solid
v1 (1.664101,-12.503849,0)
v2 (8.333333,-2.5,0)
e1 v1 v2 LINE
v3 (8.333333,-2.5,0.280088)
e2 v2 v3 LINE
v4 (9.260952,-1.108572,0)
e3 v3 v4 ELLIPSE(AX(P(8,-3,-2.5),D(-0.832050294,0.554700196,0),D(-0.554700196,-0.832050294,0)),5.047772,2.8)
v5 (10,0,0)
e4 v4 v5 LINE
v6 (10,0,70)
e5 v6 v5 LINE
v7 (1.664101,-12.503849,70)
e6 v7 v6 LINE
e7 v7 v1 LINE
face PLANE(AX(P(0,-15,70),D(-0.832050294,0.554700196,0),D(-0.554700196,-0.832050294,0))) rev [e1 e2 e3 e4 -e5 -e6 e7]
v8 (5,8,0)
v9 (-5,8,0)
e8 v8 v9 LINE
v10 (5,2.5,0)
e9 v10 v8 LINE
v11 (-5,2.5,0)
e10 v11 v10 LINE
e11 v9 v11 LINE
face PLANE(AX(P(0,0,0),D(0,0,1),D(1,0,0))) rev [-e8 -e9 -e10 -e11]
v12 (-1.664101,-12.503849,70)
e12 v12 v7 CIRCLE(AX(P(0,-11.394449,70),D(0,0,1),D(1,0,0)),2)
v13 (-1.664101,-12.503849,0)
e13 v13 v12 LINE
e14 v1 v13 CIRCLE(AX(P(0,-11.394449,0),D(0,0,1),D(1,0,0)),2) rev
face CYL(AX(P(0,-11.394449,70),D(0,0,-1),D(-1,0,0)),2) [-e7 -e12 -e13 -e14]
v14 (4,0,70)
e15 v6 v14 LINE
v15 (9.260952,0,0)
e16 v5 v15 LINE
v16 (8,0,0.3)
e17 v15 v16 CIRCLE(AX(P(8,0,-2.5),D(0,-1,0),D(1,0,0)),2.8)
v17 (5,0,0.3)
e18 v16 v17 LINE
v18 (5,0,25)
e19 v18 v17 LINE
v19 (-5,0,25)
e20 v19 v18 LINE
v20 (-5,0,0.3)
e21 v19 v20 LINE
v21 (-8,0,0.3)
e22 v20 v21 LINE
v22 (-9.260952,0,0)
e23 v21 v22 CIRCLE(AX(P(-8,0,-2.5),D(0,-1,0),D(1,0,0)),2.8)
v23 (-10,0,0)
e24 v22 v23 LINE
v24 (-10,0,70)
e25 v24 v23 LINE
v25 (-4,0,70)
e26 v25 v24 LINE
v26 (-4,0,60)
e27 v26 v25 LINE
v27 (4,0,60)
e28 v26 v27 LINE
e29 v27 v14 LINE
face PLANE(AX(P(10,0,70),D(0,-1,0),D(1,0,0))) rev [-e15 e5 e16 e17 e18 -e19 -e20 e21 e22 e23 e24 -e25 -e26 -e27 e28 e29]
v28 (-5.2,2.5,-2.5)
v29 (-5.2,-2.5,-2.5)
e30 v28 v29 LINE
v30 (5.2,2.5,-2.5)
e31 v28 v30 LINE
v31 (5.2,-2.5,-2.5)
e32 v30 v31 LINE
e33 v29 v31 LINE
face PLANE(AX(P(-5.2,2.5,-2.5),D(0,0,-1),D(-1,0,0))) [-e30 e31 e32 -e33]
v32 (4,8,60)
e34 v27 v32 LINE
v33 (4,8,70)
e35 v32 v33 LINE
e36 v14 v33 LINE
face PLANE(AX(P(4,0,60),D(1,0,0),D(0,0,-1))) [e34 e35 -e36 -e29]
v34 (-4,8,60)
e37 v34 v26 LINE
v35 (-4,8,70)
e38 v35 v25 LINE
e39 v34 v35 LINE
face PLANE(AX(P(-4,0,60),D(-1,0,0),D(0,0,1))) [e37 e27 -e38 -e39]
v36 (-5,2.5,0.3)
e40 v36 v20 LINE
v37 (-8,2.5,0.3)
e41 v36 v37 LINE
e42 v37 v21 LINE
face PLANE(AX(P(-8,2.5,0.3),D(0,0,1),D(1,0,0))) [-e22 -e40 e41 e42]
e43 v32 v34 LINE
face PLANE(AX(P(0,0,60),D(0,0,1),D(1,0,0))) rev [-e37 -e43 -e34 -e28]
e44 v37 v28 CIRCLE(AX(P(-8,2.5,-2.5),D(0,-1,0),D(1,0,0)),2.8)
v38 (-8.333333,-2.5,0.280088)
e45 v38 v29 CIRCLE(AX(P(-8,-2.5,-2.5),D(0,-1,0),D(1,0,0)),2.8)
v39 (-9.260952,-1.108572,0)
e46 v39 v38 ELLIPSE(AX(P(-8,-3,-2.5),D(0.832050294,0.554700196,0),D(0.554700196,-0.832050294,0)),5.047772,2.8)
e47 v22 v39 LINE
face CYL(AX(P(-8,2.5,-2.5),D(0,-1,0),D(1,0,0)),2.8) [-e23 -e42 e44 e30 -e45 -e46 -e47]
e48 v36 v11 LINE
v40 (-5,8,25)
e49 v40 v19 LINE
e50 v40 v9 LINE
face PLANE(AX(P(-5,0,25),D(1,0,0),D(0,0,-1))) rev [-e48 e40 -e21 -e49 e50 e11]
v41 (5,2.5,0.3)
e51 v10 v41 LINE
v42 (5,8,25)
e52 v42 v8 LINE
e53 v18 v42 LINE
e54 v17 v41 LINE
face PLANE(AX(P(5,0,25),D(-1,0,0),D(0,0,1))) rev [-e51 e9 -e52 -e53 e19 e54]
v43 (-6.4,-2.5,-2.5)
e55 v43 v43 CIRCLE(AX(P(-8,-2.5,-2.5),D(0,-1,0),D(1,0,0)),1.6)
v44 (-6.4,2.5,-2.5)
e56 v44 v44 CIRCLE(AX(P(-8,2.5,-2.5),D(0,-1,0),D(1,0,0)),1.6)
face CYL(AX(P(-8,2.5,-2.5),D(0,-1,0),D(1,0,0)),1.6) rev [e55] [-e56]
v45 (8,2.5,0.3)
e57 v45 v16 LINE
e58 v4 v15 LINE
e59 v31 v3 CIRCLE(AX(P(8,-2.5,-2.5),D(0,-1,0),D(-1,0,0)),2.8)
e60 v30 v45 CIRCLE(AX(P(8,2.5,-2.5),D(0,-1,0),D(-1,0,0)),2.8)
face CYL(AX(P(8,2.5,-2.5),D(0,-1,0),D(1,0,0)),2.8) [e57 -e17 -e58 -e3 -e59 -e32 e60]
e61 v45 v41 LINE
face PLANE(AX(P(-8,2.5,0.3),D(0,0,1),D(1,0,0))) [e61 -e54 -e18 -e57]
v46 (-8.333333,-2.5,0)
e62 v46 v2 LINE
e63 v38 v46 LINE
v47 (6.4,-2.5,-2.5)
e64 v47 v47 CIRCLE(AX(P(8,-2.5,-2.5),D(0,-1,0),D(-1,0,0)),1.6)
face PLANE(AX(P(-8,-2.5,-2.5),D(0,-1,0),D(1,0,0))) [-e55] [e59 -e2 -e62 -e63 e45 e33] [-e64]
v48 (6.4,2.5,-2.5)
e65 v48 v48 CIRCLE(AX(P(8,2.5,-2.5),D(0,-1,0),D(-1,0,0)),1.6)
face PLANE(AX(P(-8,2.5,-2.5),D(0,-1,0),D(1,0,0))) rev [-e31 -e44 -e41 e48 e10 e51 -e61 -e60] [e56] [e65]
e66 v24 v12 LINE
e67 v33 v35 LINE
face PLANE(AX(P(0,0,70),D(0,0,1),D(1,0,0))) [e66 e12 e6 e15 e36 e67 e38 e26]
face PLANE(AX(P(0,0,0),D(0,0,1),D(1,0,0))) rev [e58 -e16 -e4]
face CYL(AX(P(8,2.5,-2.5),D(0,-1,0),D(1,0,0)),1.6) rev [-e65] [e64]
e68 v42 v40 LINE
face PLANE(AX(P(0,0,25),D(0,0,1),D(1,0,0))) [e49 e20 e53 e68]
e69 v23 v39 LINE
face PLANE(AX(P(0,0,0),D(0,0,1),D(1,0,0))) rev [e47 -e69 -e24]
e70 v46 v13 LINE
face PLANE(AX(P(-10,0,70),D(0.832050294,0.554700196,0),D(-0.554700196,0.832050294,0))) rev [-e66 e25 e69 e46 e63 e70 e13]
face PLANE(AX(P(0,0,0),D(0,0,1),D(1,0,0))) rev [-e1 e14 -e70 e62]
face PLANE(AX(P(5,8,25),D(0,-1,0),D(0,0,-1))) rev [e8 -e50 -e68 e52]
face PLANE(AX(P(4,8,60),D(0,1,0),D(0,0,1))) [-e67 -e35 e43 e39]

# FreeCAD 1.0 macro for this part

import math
import FreeCAD as App
import Part
import Sketcher
Q = App.Units.Quantity


def edges_at(feature, points):
    """Names of the edges that pass closest to the given points."""
    edges = feature.Shape.Edges
    near = lambda p: min(range(len(edges)), key=lambda i: edges[i].distToShape(Part.Vertex(*p))[0])
    return sorted({f"Edge{near(p) + 1}" for p in points})


def add_polygon(sketch, points):
    """Adds a closed chain of lines whose ends are joined by coincident constraints."""
    first, n = sketch.GeometryCount, len(points)
    for a, b in zip(points, points[1:] + points[:1]):
        sketch.addGeometry(Part.LineSegment(App.Vector(*a, 0), App.Vector(*b, 0)), False)
    for i in range(n):
        sketch.addConstraint(Sketcher.Constraint("Coincident", first + i, 2, first + (i + 1) % n, 1))

doc = App.newDocument("Part")
body = doc.addObject("PartDesign::Body", "Body")

# Sketch on XY plane
sketch1 = body.newObject("Sketcher::SketchObject", "Sketch")
sketch1.AttachmentSupport = (doc.getObject("XY_Plane"), [""])
sketch1.MapMode = "FlatFace"
add_polygon(sketch1, [(0, -15), (10, 0), (-10, 0)])  # lines 0-2
sketch1.addConstraint(Sketcher.Constraint("Horizontal", 1))
sketch1.addConstraint(Sketcher.Constraint("Symmetric", 0, 2, 1, 2, -1, 1))
sketch1.addConstraint(Sketcher.Constraint("PointOnObject", 2, 2, -2))
sketch1.addConstraint(Sketcher.Constraint("DistanceX", 1, 2, 1, 1, Q("20 mm")))
sketch1.addConstraint(Sketcher.Constraint("DistanceY", 2, 2, -1, 1, Q("15 mm")))
pad1 = body.newObject("PartDesign::Pad", "Pad")
pad1.Profile = sketch1
pad1.Length = 70

# Sketch on XY plane
sketch2 = body.newObject("Sketcher::SketchObject", "Sketch001")
sketch2.AttachmentSupport = (doc.getObject("XY_Plane"), [""])
sketch2.MapMode = "FlatFace"
add_polygon(sketch2, [(-5, 8), (-5, 0), (5, 0), (5, 8)])  # lines 0-3
sketch2.addConstraint(Sketcher.Constraint("Vertical", 0))
sketch2.addConstraint(Sketcher.Constraint("Horizontal", 1))
sketch2.addConstraint(Sketcher.Constraint("Vertical", 2))
sketch2.addConstraint(Sketcher.Constraint("Horizontal", 3))
sketch2.addConstraint(Sketcher.Constraint("Symmetric", 0, 2, 1, 2, -1, 1))
sketch2.addConstraint(Sketcher.Constraint("DistanceX", 1, 1, 1, 2, Q("10 mm")))
sketch2.addConstraint(Sketcher.Constraint("DistanceY", 0, 2, 0, 1, Q("8 mm")))
pad2 = body.newObject("PartDesign::Pad", "Pad001")
pad2.Profile = sketch2
pad2.Length = 25

# Sketch on XY plane
sketch3 = body.newObject("Sketcher::SketchObject", "Sketch002")
sketch3.AttachmentSupport = (doc.getObject("XY_Plane"), [""])
sketch3.MapMode = "FlatFace"
sketch3.AttachmentOffset = App.Placement(App.Vector(0, 0, 70), App.Rotation())
add_polygon(sketch3, [(-4, 8), (-4, 0), (4, 0), (4, 8)])  # lines 0-3
sketch3.addConstraint(Sketcher.Constraint("Vertical", 0))
sketch3.addConstraint(Sketcher.Constraint("Horizontal", 1))
sketch3.addConstraint(Sketcher.Constraint("Vertical", 2))
sketch3.addConstraint(Sketcher.Constraint("Horizontal", 3))
sketch3.addConstraint(Sketcher.Constraint("Symmetric", 0, 2, 1, 2, -1, 1))
sketch3.addConstraint(Sketcher.Constraint("Equal", 3, 0))
sketch3.addConstraint(Sketcher.Constraint("DistanceX", 1, 1, 1, 2, Q("8 mm")))
pad3 = body.newObject("PartDesign::Pad", "Pad002")
pad3.Profile = sketch3
pad3.Length = 10
pad3.Reversed = True

# Sketch on XZ plane
sketch4 = body.newObject("Sketcher::SketchObject", "Sketch003")
sketch4.AttachmentSupport = (doc.getObject("XZ_Plane"), [""])
sketch4.MapMode = "FlatFace"
sketch4.addGeometry(Part.LineSegment(App.Vector(-5.2, -2.5, 0), App.Vector(5.2, -2.5, 0)), False)
sketch4.addGeometry(Part.ArcOfCircle(Part.Circle(App.Vector(8, -2.5, 0), App.Vector(0, 0, 1), 2.8), math.radians(180), math.radians(450)), False)
sketch4.addGeometry(Part.LineSegment(App.Vector(8, 0.3, 0), App.Vector(-8, 0.3, 0)), False)
sketch4.addGeometry(Part.ArcOfCircle(Part.Circle(App.Vector(-8, -2.5, 0), App.Vector(0, 0, 1), 2.8), math.radians(90), math.radians(360)), False)
sketch4.addGeometry(Part.Circle(App.Vector(-8, -2.5, 0), App.Vector(0, 0, 1), 1.6), False)
sketch4.addGeometry(Part.Circle(App.Vector(8, -2.5, 0), App.Vector(0, 0, 1), 1.6), False)
sketch4.addConstraint(Sketcher.Constraint("Coincident", 0, 2, 1, 1))
sketch4.addConstraint(Sketcher.Constraint("Tangent", 1, 2, 2, 1))
sketch4.addConstraint(Sketcher.Constraint("Tangent", 2, 2, 3, 1))
sketch4.addConstraint(Sketcher.Constraint("Coincident", 3, 2, 0, 1))
sketch4.addConstraint(Sketcher.Constraint("Horizontal", 0))
sketch4.addConstraint(Sketcher.Constraint("Horizontal", 2))
sketch4.addConstraint(Sketcher.Constraint("Coincident", 4, 3, 3, 3))
sketch4.addConstraint(Sketcher.Constraint("Coincident", 5, 3, 1, 3))
sketch4.addConstraint(Sketcher.Constraint("Equal", 1, 3))
sketch4.addConstraint(Sketcher.Constraint("Equal", 4, 5))
sketch4.addConstraint(Sketcher.Constraint("Horizontal", 5, 3, 0, 2))
sketch4.addConstraint(Sketcher.Constraint("Diameter", 4, Q("3.2 mm")))
sketch4.addConstraint(Sketcher.Constraint("Radius", 1, Q("2.8 mm")))
sketch4.addConstraint(Sketcher.Constraint("DistanceX", 2, 2, 2, 1, Q("16 mm")))
sketch4.addConstraint(Sketcher.Constraint("DistanceX", -1, 1, 1, 3, Q("8 mm")))
sketch4.addConstraint(Sketcher.Constraint("DistanceY", 1, 3, -1, 1, Q("2.5 mm")))
pad4 = body.newObject("PartDesign::Pad", "Pad003")
pad4.Profile = sketch4
pad4.Length = 5
pad4.Midplane = True
doc.recompute()

fillet = body.newObject("PartDesign::Fillet", "Fillet")
fillet.Base = (pad4, edges_at(pad4, [(0, -15, 35)]))
fillet.Radius = 2

doc.recompute()
